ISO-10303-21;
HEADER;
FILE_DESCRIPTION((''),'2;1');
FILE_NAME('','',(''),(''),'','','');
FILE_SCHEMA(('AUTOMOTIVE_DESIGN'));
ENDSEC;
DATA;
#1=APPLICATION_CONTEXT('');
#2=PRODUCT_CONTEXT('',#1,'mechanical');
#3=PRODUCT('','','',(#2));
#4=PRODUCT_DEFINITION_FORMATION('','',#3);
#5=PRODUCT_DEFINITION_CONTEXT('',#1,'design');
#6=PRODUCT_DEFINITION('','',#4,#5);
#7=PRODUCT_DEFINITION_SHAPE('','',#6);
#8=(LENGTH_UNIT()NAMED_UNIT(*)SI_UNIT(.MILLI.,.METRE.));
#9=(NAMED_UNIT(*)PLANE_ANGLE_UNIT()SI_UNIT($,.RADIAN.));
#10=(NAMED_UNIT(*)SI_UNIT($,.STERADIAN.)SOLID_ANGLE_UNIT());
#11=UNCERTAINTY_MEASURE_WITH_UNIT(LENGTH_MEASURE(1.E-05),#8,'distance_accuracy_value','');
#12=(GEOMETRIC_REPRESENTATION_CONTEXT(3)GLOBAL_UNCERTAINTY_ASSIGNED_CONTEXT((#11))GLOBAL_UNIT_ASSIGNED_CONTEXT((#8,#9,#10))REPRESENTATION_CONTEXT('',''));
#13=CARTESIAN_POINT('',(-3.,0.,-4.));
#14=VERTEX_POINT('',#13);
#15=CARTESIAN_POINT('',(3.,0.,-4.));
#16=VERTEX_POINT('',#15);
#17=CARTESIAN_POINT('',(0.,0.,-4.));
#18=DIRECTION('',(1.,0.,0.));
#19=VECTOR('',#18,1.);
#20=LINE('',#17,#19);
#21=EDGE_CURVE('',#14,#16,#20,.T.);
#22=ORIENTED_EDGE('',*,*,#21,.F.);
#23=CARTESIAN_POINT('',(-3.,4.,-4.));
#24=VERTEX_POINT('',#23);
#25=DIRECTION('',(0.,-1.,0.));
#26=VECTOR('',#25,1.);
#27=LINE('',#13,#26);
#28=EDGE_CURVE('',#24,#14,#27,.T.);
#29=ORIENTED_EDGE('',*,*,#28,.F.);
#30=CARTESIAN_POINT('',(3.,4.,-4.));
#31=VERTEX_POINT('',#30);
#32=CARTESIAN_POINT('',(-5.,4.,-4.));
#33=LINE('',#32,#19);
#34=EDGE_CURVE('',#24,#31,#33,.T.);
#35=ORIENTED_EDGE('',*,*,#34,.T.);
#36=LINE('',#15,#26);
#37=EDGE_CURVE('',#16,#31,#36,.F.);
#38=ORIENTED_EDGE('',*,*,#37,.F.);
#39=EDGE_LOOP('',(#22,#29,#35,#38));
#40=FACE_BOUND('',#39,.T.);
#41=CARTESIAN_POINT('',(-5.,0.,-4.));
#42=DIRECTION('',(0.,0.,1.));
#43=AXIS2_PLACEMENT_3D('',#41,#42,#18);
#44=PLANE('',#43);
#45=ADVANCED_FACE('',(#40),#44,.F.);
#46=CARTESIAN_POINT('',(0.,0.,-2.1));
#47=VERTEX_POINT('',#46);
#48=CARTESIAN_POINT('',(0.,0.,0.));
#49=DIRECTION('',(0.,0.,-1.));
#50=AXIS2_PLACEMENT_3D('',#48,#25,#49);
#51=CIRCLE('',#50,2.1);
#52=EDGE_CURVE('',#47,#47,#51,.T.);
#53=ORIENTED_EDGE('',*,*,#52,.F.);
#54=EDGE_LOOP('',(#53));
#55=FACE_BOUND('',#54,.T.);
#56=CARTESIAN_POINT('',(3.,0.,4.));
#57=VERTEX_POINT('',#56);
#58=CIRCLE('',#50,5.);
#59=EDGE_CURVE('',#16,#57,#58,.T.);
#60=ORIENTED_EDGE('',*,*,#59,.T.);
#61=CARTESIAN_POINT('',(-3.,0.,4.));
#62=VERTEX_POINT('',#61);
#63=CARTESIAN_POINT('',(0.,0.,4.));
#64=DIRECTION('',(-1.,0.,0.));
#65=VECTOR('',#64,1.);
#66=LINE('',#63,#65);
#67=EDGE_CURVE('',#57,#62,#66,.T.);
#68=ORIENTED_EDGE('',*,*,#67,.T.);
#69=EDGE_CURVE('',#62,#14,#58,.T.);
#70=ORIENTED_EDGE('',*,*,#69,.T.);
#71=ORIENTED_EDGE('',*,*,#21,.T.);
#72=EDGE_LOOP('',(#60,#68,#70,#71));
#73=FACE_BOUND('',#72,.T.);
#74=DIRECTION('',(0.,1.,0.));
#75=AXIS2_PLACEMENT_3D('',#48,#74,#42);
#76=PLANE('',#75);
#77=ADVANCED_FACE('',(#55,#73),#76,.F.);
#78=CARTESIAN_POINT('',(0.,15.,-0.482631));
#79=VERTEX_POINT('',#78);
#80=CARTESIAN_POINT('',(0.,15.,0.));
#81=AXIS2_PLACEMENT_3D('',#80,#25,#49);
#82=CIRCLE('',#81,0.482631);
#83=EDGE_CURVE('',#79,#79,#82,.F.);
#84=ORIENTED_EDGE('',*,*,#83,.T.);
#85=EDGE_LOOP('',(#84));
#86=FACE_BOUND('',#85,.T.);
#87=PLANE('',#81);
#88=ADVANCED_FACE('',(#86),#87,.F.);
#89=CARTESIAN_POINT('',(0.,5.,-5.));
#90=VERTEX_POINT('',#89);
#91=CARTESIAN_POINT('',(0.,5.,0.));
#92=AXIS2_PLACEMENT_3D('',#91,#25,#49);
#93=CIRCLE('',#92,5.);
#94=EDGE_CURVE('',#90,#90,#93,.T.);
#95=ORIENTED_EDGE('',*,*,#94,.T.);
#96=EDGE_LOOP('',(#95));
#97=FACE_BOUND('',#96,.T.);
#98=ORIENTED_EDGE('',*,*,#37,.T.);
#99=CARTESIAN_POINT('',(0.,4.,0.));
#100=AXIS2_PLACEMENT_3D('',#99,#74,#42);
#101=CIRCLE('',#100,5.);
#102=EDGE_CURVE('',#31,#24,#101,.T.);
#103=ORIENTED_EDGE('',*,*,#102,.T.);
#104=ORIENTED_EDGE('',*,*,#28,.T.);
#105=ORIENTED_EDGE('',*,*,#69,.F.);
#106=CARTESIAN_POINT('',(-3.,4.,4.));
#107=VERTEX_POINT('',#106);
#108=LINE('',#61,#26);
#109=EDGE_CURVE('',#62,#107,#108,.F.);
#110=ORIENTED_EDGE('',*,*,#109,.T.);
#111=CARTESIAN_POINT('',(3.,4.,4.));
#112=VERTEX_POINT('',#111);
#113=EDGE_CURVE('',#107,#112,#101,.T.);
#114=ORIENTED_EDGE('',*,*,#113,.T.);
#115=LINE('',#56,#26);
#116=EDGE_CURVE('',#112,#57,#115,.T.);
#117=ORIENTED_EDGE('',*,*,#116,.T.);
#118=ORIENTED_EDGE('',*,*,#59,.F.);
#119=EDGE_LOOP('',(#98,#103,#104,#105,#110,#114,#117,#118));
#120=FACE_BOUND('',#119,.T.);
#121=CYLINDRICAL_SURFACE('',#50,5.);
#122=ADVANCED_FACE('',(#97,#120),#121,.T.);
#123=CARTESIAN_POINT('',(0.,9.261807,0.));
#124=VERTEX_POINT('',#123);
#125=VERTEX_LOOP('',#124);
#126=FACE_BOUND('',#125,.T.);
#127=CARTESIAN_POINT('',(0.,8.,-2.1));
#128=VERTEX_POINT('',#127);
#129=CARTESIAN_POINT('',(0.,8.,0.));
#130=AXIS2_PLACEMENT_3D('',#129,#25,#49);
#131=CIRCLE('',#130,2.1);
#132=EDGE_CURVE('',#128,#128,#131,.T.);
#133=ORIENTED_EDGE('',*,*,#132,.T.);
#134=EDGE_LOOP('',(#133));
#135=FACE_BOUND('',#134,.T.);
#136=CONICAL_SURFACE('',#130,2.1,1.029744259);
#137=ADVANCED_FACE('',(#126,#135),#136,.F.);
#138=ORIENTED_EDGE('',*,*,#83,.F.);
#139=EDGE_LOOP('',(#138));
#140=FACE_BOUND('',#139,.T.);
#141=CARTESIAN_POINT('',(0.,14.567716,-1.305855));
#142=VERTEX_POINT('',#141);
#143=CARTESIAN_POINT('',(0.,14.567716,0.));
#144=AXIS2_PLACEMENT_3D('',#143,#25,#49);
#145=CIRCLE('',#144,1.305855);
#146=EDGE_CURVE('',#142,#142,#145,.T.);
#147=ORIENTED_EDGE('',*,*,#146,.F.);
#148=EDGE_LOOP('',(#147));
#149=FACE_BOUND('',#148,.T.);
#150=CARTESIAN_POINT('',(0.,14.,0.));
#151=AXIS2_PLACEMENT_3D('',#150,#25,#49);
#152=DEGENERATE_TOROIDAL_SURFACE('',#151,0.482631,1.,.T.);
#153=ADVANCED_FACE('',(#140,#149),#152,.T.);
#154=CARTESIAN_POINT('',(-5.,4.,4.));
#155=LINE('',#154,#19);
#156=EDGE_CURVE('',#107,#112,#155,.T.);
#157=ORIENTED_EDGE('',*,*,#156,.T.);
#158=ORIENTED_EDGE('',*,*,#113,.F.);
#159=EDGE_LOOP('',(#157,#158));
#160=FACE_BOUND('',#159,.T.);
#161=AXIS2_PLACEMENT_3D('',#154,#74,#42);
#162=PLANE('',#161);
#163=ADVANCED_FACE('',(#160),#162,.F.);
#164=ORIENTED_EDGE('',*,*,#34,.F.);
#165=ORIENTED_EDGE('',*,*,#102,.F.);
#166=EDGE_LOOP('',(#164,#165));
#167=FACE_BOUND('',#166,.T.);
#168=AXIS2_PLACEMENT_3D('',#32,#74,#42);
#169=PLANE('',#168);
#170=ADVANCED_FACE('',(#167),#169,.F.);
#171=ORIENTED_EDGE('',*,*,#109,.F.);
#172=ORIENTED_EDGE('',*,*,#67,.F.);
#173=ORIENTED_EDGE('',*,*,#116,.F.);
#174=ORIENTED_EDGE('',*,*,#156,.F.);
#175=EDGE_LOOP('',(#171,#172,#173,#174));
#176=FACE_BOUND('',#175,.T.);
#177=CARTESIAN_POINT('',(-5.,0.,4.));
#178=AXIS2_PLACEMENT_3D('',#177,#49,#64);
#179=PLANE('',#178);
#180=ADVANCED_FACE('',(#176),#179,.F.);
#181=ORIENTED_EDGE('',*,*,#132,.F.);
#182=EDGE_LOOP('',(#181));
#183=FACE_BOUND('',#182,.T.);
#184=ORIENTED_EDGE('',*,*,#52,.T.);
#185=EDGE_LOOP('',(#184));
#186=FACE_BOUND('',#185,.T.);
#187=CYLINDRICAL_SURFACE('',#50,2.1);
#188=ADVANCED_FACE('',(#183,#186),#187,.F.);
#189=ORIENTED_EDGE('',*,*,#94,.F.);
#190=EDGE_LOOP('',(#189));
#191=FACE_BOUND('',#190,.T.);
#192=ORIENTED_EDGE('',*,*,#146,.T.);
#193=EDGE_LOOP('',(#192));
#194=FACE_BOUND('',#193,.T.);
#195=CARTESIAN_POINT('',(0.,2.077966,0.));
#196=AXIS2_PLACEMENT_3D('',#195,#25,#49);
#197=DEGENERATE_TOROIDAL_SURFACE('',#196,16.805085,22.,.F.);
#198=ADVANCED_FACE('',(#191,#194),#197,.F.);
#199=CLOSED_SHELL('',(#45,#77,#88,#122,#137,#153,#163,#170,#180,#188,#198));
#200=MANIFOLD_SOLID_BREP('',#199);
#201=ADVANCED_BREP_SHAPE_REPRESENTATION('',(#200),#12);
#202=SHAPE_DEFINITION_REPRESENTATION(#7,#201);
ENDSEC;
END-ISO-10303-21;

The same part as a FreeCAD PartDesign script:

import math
import FreeCAD as App
import Part
import Sketcher


def edges_at(feature, points):
    """Names of the edges that pass closest to the given points."""
    edges = feature.Shape.Edges
    near = lambda p: min(range(len(edges)), key=lambda i: edges[i].distToShape(Part.Vertex(*p))[0])
    return sorted({f"Edge{near(p) + 1}" for p in points})


def add_polygon(sketch, points):
    """Adds a closed chain of lines whose ends are joined by coincident constraints."""
    first, n = sketch.GeometryCount, len(points)
    for a, b in zip(points, points[1:] + points[:1]):
        sketch.addGeometry(Part.LineSegment(App.Vector(*a, 0), App.Vector(*b, 0)), False)
    for i in range(n):
        sketch.addConstraint(Sketcher.Constraint("Coincident", first + i, 2, first + (i + 1) % n, 1))

doc = App.newDocument("Part")
body = doc.addObject("PartDesign::Body", "Body")

sketch1 = doc.addObject("Sketcher::SketchObject", "Sketch")
body.addObject(sketch1)
sketch1.AttachmentSupport = (doc.XY_Plane, [""])
sketch1.MapMode = "FlatFace"
sketch1.addGeometry(Part.LineSegment(App.Vector(-5, 0, 0), App.Vector(0, 0, 0)), False)
sketch1.addGeometry(Part.LineSegment(App.Vector(0, 0, 0), App.Vector(0, 15, 0)), False)
sketch1.addGeometry(Part.LineSegment(App.Vector(0, 15, 0), App.Vector(-1, 15, 0)), False)
sketch1.addGeometry(Part.ArcOfCircle(Part.Circle(App.Vector(16.8, 2.1, 0), App.Vector(0, 0, 1), 22), math.radians(144), math.radians(172)), False)
sketch1.addGeometry(Part.LineSegment(App.Vector(-5, 5, 0), App.Vector(-5, 0, 0)), False)
sketch1.addConstraint(Sketcher.Constraint("Coincident", 0, 2, 1, 1))
sketch1.addConstraint(Sketcher.Constraint("Coincident", 1, 2, 2, 1))
sketch1.addConstraint(Sketcher.Constraint("Coincident", 2, 2, 3, 1))
sketch1.addConstraint(Sketcher.Constraint("Coincident", 3, 2, 4, 1))
sketch1.addConstraint(Sketcher.Constraint("Coincident", 4, 2, 0, 1))
sketch1.addConstraint(Sketcher.Constraint("Horizontal", 0))
sketch1.addConstraint(Sketcher.Constraint("Vertical", 1))
sketch1.addConstraint(Sketcher.Constraint("Horizontal", 2))
sketch1.addConstraint(Sketcher.Constraint("Vertical", 4))
sketch1.addConstraint(Sketcher.Constraint("Coincident", 0, 2, -1, 1))
sketch1.addConstraint(Sketcher.Constraint("Equal", 0, 4))
sketch1.addConstraint(Sketcher.Constraint("Radius", 3, 22.0))
sketch1.addConstraint(Sketcher.Constraint("DistanceX", 0, 1, 0, 2, 5.0))
sketch1.addConstraint(Sketcher.Constraint("DistanceX", 2, 2, 2, 1, 1.0))
sketch1.addConstraint(Sketcher.Constraint("DistanceY", 1, 1, 1, 2, 15.0))
revolution = doc.addObject("PartDesign::Revolution", "Revolution")
body.addObject(revolution)
revolution.Profile = sketch1
revolution.ReferenceAxis = (sketch1, ["V_Axis"])
revolution.Angle = 360
doc.recompute()

fillet = doc.addObject("PartDesign::Fillet", "Fillet")
body.addObject(fillet)
fillet.Base = (revolution, edges_at(revolution, [(0, 15, 1)]))
fillet.Radius = 1

sketch2 = doc.addObject("Sketcher::SketchObject", "Sketch001")
body.addObject(sketch2)
sketch2.AttachmentSupport = (doc.YZ_Plane, [""])
sketch2.MapMode = "FlatFace"
add_polygon(sketch2, [(4, 7), (0, 7), (0, 4), (4, 4)])
add_polygon(sketch2, [(4, -4), (0, -4), (0, -7), (4, -7)])
sketch2.addConstraint(Sketcher.Constraint("Horizontal", 0))
sketch2.addConstraint(Sketcher.Constraint("Vertical", 1))
sketch2.addConstraint(Sketcher.Constraint("Horizontal", 2))
sketch2.addConstraint(Sketcher.Constraint("Vertical", 3))
sketch2.addConstraint(Sketcher.Constraint("Horizontal", 4))
sketch2.addConstraint(Sketcher.Constraint("Vertical", 5))
sketch2.addConstraint(Sketcher.Constraint("Horizontal", 6))
sketch2.addConstraint(Sketcher.Constraint("Vertical", 7))
sketch2.addConstraint(Sketcher.Constraint("Symmetric", 1, 2, 4, 2, -1, 1))
sketch2.addConstraint(Sketcher.Constraint("Symmetric", 0, 2, 5, 2, -1))
sketch2.addConstraint(Sketcher.Constraint("Vertical", 3, 2, 6, 2))
sketch2.addConstraint(Sketcher.Constraint("DistanceX", 0, 2, 0, 1, 4.0))
sketch2.addConstraint(Sketcher.Constraint("DistanceY", 1, 2, 1, 1, 3.0))
sketch2.addConstraint(Sketcher.Constraint("DistanceY", -1, 1, 0, 2, 7.0))
pocket1 = doc.addObject("PartDesign::Pocket", "Pocket")
body.addObject(pocket1)
pocket1.Profile = sketch2
pocket1.Type = "ThroughAll"
pocket1.Midplane = True

sketch3 = doc.addObject("Sketcher::SketchObject", "Sketch002")
body.addObject(sketch3)
sketch3.AttachmentSupport = (doc.XZ_Plane, [""])
sketch3.MapMode = "FlatFace"
sketch3.addGeometry(Part.Circle(App.Vector(0, 0, 0), App.Vector(0, 0, 1), 2.1), False)
sketch3.addConstraint(Sketcher.Constraint("Coincident", 0, 3, -1, 1))
sketch3.addConstraint(Sketcher.Constraint("Diameter", 0, 4.2))
doc.recompute()
hole = doc.addObject("PartDesign::Hole", "Hole")
body.addObject(hole)
hole.Profile = sketch3
hole.ThreadType = "None"
hole.Diameter = 4.2
hole.DepthType = "Dimension"
hole.Depth = 8
hole.DrillPoint = "Angled"
hole.DrillPointAngle = 118

doc.recompute()
